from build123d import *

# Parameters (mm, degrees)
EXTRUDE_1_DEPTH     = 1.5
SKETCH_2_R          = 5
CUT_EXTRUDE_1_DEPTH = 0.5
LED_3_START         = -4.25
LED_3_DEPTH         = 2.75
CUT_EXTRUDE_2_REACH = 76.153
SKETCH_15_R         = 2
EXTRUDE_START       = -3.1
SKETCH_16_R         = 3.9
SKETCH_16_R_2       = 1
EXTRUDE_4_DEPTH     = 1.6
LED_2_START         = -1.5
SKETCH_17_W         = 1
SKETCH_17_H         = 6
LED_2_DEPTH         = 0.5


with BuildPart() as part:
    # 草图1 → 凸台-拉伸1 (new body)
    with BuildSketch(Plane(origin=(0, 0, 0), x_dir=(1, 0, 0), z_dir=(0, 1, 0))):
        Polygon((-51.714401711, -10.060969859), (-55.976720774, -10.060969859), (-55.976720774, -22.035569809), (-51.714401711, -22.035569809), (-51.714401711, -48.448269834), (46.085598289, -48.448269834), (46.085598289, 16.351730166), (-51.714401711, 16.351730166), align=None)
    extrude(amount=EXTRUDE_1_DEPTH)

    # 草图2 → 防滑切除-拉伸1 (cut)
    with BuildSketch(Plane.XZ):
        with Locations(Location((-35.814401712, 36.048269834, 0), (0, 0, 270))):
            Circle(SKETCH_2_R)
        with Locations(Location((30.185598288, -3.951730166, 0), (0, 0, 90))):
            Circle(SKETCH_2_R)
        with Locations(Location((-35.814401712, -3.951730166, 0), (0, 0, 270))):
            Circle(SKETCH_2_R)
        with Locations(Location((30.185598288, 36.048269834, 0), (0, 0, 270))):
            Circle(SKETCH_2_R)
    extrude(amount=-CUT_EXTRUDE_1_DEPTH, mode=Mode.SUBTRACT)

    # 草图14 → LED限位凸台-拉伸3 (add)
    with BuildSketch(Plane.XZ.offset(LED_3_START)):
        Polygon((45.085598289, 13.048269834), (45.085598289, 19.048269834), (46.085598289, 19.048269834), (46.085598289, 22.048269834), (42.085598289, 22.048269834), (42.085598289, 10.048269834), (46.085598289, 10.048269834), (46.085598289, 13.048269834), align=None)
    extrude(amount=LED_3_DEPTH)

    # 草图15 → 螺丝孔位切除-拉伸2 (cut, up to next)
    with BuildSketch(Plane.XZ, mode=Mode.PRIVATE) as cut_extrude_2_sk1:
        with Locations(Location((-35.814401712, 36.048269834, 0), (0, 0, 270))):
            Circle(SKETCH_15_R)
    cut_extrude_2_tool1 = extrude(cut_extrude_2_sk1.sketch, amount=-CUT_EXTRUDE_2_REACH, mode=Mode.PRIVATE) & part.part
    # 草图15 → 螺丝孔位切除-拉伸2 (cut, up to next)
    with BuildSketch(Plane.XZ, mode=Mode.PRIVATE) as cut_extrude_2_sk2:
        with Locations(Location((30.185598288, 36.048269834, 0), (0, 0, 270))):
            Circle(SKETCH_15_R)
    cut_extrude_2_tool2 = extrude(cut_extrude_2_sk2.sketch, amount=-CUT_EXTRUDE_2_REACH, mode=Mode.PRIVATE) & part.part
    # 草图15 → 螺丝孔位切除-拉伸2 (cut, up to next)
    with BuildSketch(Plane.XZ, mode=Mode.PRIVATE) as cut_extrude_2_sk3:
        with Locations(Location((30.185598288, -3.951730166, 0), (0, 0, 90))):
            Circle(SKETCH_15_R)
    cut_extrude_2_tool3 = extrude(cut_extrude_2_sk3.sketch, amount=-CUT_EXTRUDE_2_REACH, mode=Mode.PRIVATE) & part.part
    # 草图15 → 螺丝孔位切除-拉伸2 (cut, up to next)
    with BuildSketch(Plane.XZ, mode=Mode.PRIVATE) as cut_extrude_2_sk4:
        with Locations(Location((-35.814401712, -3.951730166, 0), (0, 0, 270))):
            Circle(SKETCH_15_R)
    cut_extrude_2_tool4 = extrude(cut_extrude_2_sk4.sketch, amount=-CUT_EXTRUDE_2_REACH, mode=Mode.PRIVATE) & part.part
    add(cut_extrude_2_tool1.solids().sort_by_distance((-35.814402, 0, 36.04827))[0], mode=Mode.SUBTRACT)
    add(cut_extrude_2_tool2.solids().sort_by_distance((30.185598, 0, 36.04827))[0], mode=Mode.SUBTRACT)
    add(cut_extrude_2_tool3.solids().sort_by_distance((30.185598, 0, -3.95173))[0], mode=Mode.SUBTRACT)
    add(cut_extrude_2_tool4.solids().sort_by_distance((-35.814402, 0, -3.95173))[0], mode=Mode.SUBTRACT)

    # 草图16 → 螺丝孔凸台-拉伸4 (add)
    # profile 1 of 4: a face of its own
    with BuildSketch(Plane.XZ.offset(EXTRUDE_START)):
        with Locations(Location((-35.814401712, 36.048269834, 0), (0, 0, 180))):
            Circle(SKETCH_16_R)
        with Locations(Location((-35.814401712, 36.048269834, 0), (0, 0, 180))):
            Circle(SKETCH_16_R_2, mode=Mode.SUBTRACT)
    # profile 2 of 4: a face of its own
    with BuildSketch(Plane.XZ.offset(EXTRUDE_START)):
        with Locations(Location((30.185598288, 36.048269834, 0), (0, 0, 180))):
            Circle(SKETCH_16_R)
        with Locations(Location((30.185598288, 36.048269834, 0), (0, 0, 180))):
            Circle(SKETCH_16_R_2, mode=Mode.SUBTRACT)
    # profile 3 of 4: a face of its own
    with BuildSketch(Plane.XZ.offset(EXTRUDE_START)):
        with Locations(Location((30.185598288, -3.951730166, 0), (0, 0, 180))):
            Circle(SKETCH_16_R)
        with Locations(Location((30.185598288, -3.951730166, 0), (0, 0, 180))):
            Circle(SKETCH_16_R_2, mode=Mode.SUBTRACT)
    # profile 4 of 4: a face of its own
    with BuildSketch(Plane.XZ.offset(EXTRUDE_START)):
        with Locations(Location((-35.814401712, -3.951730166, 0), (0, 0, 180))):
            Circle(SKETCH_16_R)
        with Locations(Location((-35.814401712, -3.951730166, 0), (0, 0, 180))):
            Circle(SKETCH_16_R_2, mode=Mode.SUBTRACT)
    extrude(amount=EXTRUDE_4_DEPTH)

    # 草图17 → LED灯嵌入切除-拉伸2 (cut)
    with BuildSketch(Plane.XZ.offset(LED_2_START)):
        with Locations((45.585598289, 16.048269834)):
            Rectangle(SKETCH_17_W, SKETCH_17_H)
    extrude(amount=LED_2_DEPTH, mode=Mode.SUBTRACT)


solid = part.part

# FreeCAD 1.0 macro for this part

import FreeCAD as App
import Part
import Sketcher
Q = App.Units.Quantity

doc = App.newDocument("Part")
body = doc.addObject("PartDesign::Body", "Body")

# Sketch on XZ plane
sketch1 = body.newObject("Sketcher::SketchObject", "Sketch")
sketch1.AttachmentSupport = (doc.getObject("XZ_Plane"), [""])
sketch1.MapMode = "FlatFace"
sketch1.addGeometry([
    Part.LineSegment(App.Vector(-51.7, 10.1, 0), App.Vector(-56, 10.1, 0)),  # 0
    Part.LineSegment(App.Vector(-56, 10.1, 0), App.Vector(-56, 22, 0)),  # 1
    Part.LineSegment(App.Vector(-56, 22, 0), App.Vector(-51.7, 22, 0)),  # 2
    Part.LineSegment(App.Vector(-51.7, 22, 0), App.Vector(-51.7, 48.4, 0)),  # 3
    Part.LineSegment(App.Vector(-51.7, 48.4, 0), App.Vector(46.1, 48.4, 0)),  # 4
    Part.LineSegment(App.Vector(46.1, 48.4, 0), App.Vector(46.1, -16.4, 0)),  # 5
    Part.LineSegment(App.Vector(46.1, -16.4, 0), App.Vector(-51.7, -16.4, 0)),  # 6
    Part.LineSegment(App.Vector(-51.7, -16.4, 0), App.Vector(-51.7, 10.1, 0)),  # 7
], False)
sketch1.addConstraint([
    Sketcher.Constraint("Coincident", 0, 2, 1, 1),
    Sketcher.Constraint("Coincident", 1, 2, 2, 1),
    Sketcher.Constraint("Coincident", 2, 2, 3, 1),
    Sketcher.Constraint("Coincident", 3, 2, 4, 1),
    Sketcher.Constraint("Coincident", 4, 2, 5, 1),
    Sketcher.Constraint("Coincident", 5, 2, 6, 1),
    Sketcher.Constraint("Coincident", 6, 2, 7, 1),
    Sketcher.Constraint("Coincident", 7, 2, 0, 1),
    Sketcher.Constraint("Horizontal", 0),
    Sketcher.Constraint("Vertical", 1),
    Sketcher.Constraint("Horizontal", 2),
    Sketcher.Constraint("Vertical", 3),
    Sketcher.Constraint("Horizontal", 4),
    Sketcher.Constraint("Vertical", 5),
    Sketcher.Constraint("Horizontal", 6),
    Sketcher.Constraint("Vertical", 7),
    Sketcher.Constraint("Vertical", 3, 2, 6, 2),
    Sketcher.Constraint("Equal", 3, 7),
    Sketcher.Constraint("DistanceX", 4, 1, 4, 2, Q("97.8 mm")),
    Sketcher.Constraint("DistanceY", 5, 2, 5, 1, Q("64.8 mm")),
    Sketcher.Constraint("DistanceY", 1, 1, 1, 2, Q("11.9746 mm")),
    Sketcher.Constraint("DistanceX", 0, 2, 0, 1, Q("4.262319 mm")),
    Sketcher.Constraint("DistanceX", 2, 2, -1, 1, Q("51.714402 mm")),
    Sketcher.Constraint("DistanceY", -1, 1, 0, 2, Q("10.06097 mm")),
])
pad1 = body.newObject("PartDesign::Pad", "Pad")
pad1.Profile = sketch1
pad1.Length = 1.5
pad1.Reversed = True

# Sketch on XZ plane
sketch2 = body.newObject("Sketcher::SketchObject", "Sketch001")
sketch2.AttachmentSupport = (doc.getObject("XZ_Plane"), [""])
sketch2.MapMode = "FlatFace"
sketch2.addGeometry([
    Part.Circle(App.Vector(-36, 36, 0), App.Vector(0, 0, 1), 5),
    Part.Circle(App.Vector(30, -4, 0), App.Vector(0, 0, 1), 5),
    Part.Circle(App.Vector(-36, -4, 0), App.Vector(0, 0, 1), 5),
    Part.Circle(App.Vector(30, 36, 0), App.Vector(0, 0, 1), 5),
], False)
sketch2.addConstraint([
    Sketcher.Constraint("Equal", 0, 1),
    Sketcher.Constraint("Equal", 1, 2),
    Sketcher.Constraint("Equal", 2, 3),
    Sketcher.Constraint("Horizontal", 1, 3, 2, 3),
    Sketcher.Constraint("Horizontal", 0, 3, 3, 3),
    Sketcher.Constraint("Vertical", 0, 3, 2, 3),
    Sketcher.Constraint("Vertical", 1, 3, 3, 3),
    Sketcher.Constraint("Diameter", 0, Q("10 mm")),
    Sketcher.Constraint("DistanceX", 0, 3, 1, 3, Q("66 mm")),
    Sketcher.Constraint("DistanceY", 1, 3, 0, 3, Q("40 mm")),
    Sketcher.Constraint("DistanceX", 0, 3, -1, 1, Q("35.814402 mm")),
    Sketcher.Constraint("DistanceY", -1, 1, 0, 3, Q("36.04827 mm")),
])
pocket1 = body.newObject("PartDesign::Pocket", "Pocket")
pocket1.Profile = sketch2
pocket1.Length = 0.5

# Sketch on XZ plane
sketch3 = body.newObject("Sketcher::SketchObject", "Sketch002")
sketch3.AttachmentSupport = (doc.getObject("XZ_Plane"), [""])
sketch3.MapMode = "FlatFace"
sketch3.AttachmentOffset = App.Placement(App.Vector(0, 0, -4.25), App.Rotation())
sketch3.addGeometry([
    Part.LineSegment(App.Vector(45.1, 13, 0), App.Vector(45.1, 19, 0)),  # 0
    Part.LineSegment(App.Vector(45.1, 19, 0), App.Vector(46.1, 19, 0)),  # 1
    Part.LineSegment(App.Vector(46.1, 19, 0), App.Vector(46.1, 22, 0)),  # 2
    Part.LineSegment(App.Vector(46.1, 22, 0), App.Vector(42.1, 22, 0)),  # 3
    Part.LineSegment(App.Vector(42.1, 22, 0), App.Vector(42.1, 10, 0)),  # 4
    Part.LineSegment(App.Vector(42.1, 10, 0), App.Vector(46.1, 10, 0)),  # 5
    Part.LineSegment(App.Vector(46.1, 10, 0), App.Vector(46.1, 13, 0)),  # 6
    Part.LineSegment(App.Vector(46.1, 13, 0), App.Vector(45.1, 13, 0)),  # 7
], False)
sketch3.addConstraint([
    Sketcher.Constraint("Coincident", 0, 2, 1, 1),
    Sketcher.Constraint("Coincident", 1, 2, 2, 1),
    Sketcher.Constraint("Coincident", 2, 2, 3, 1),
    Sketcher.Constraint("Coincident", 3, 2, 4, 1),
    Sketcher.Constraint("Coincident", 4, 2, 5, 1),
    Sketcher.Constraint("Coincident", 5, 2, 6, 1),
    Sketcher.Constraint("Coincident", 6, 2, 7, 1),
    Sketcher.Constraint("Coincident", 7, 2, 0, 1),
    Sketcher.Constraint("Vertical", 0),
    Sketcher.Constraint("Horizontal", 1),
    Sketcher.Constraint("Vertical", 2),
    Sketcher.Constraint("Horizontal", 3),
    Sketcher.Constraint("Vertical", 4),
    Sketcher.Constraint("Horizontal", 5),
    Sketcher.Constraint("Vertical", 6),
    Sketcher.Constraint("Horizontal", 7),
    Sketcher.Constraint("Vertical", 2, 2, 5, 2),
    Sketcher.Constraint("Equal", 2, 6),
    Sketcher.Constraint("DistanceX", 1, 1, 1, 2, Q("1 mm")),
    Sketcher.Constraint("DistanceX", 3, 2, 3, 1, Q("4 mm")),
    Sketcher.Constraint("DistanceY", 0, 1, 0, 2, Q("6 mm")),
    Sketcher.Constraint("DistanceY", 2, 1, 2, 2, Q("3 mm")),
    Sketcher.Constraint("DistanceX", -1, 1, 0, 2, Q("45.085598 mm")),
    Sketcher.Constraint("DistanceY", -1, 1, 0, 2, Q("19.04827 mm")),
])
pad2 = body.newObject("PartDesign::Pad", "Pad001")
pad2.Profile = sketch3
pad2.Length = 2.75

# Sketch on XZ plane
sketch4 = body.newObject("Sketcher::SketchObject", "Sketch003")
sketch4.AttachmentSupport = (doc.getObject("XZ_Plane"), [""])
sketch4.MapMode = "FlatFace"
sketch4.addGeometry(Part.Circle(App.Vector(-35.8, 36, 0), App.Vector(0, 0, 1), 2), False)
sketch4.addConstraint([
    Sketcher.Constraint("Diameter", 0, Q("4 mm")),
    Sketcher.Constraint("DistanceX", 0, 3, -1, 1, Q("35.814402 mm")),
    Sketcher.Constraint("DistanceY", -1, 1, 0, 3, Q("36.04827 mm")),
])
pocket2 = body.newObject("PartDesign::Pocket", "Pocket001")
pocket2.Profile = sketch4
pocket2.Length = 1.5

# Sketch on XZ plane
sketch5 = body.newObject("Sketcher::SketchObject", "Sketch004")
sketch5.AttachmentSupport = (doc.getObject("XZ_Plane"), [""])
sketch5.MapMode = "FlatFace"
sketch5.addGeometry(Part.Circle(App.Vector(30.2, 36, 0), App.Vector(0, 0, 1), 2), False)
sketch5.addConstraint([
    Sketcher.Constraint("Diameter", 0, Q("4 mm")),
    Sketcher.Constraint("DistanceX", -1, 1, 0, 3, Q("30.185598 mm")),
    Sketcher.Constraint("DistanceY", -1, 1, 0, 3, Q("36.04827 mm")),
])
pocket3 = body.newObject("PartDesign::Pocket", "Pocket002")
pocket3.Profile = sketch5
pocket3.Length = 1.5

# Sketch on XZ plane
sketch6 = body.newObject("Sketcher::SketchObject", "Sketch005")
sketch6.AttachmentSupport = (doc.getObject("XZ_Plane"), [""])
sketch6.MapMode = "FlatFace"
sketch6.addGeometry(Part.Circle(App.Vector(30.2, -4, 0), App.Vector(0, 0, 1), 2), False)
sketch6.addConstraint([
    Sketcher.Constraint("Diameter", 0, Q("4 mm")),
    Sketcher.Constraint("DistanceX", -1, 1, 0, 3, Q("30.185598 mm")),
    Sketcher.Constraint("DistanceY", 0, 3, -1, 1, Q("3.95173 mm")),
])
pocket4 = body.newObject("PartDesign::Pocket", "Pocket003")
pocket4.Profile = sketch6
pocket4.Length = 1.5

# Sketch on XZ plane
sketch7 = body.newObject("Sketcher::SketchObject", "Sketch006")
sketch7.AttachmentSupport = (doc.getObject("XZ_Plane"), [""])
sketch7.MapMode = "FlatFace"
sketch7.addGeometry(Part.Circle(App.Vector(-35.8, -4, 0), App.Vector(0, 0, 1), 2), False)
sketch7.addConstraint([
    Sketcher.Constraint("Diameter", 0, Q("4 mm")),
    Sketcher.Constraint("DistanceX", 0, 3, -1, 1, Q("35.814402 mm")),
    Sketcher.Constraint("DistanceY", 0, 3, -1, 1, Q("3.95173 mm")),
])
pocket5 = body.newObject("PartDesign::Pocket", "Pocket004")
pocket5.Profile = sketch7
pocket5.Length = 1.5

# Sketch on XZ plane
sketch8 = body.newObject("Sketcher::SketchObject", "Sketch007")
sketch8.AttachmentSupport = (doc.getObject("XZ_Plane"), [""])
sketch8.MapMode = "FlatFace"
sketch8.AttachmentOffset = App.Placement(App.Vector(0, 0, -3.1), App.Rotation())
sketch8.addGeometry([
    Part.Circle(App.Vector(-35.8, 36, 0), App.Vector(0, 0, 1), 3.9),  # 0
    Part.Circle(App.Vector(-35.8, 36, 0), App.Vector(0, 0, 1), 1),  # 1
    Part.Circle(App.Vector(30.2, 36, 0), App.Vector(0, 0, 1), 3.9),  # 2
    Part.Circle(App.Vector(30.2, 36, 0), App.Vector(0, 0, 1), 1),  # 3
    Part.Circle(App.Vector(30.2, -4, 0), App.Vector(0, 0, 1), 3.9),  # 4
    Part.Circle(App.Vector(30.2, -4, 0), App.Vector(0, 0, 1), 1),  # 5
    Part.Circle(App.Vector(-35.8, -4, 0), App.Vector(0, 0, 1), 3.9),  # 6
    Part.Circle(App.Vector(-35.8, -4, 0), App.Vector(0, 0, 1), 1),  # 7
], False)
sketch8.addConstraint([
    Sketcher.Constraint("Coincident", 1, 3, 0, 3),
    Sketcher.Constraint("Coincident", 3, 3, 2, 3),
    Sketcher.Constraint("Coincident", 5, 3, 4, 3),
    Sketcher.Constraint("Coincident", 7, 3, 6, 3),
    Sketcher.Constraint("Equal", 0, 2),
    Sketcher.Constraint("Equal", 1, 3),
    Sketcher.Constraint("Equal", 2, 4),
    Sketcher.Constraint("Equal", 3, 5),
    Sketcher.Constraint("Equal", 4, 6),
    Sketcher.Constraint("Equal", 5, 7),
    Sketcher.Constraint("Horizontal", 1, 3, 2, 3),
    Sketcher.Constraint("Horizontal", 5, 3, 6, 3),
    Sketcher.Constraint("Vertical", 3, 3, 4, 3),
    Sketcher.Constraint("Vertical", 1, 3, 6, 3),
    Sketcher.Constraint("Diameter", 1, Q("2 mm")),
    Sketcher.Constraint("Diameter", 0, Q("7.8 mm")),
    Sketcher.Constraint("DistanceX", 0, 3, 2, 3, Q("66 mm")),
    Sketcher.Constraint("DistanceY", 4, 3, 2, 3, Q("40 mm")),
    Sketcher.Constraint("DistanceX", 0, 3, -1, 1, Q("35.814402 mm")),
    Sketcher.Constraint("DistanceY", -1, 1, 0, 3, Q("36.04827 mm")),
])
pad3 = body.newObject("PartDesign::Pad", "Pad002")
pad3.Profile = sketch8
pad3.Length = 1.6

# Sketch on XZ plane
sketch9 = body.newObject("Sketcher::SketchObject", "Sketch008")
sketch9.AttachmentSupport = (doc.getObject("XZ_Plane"), [""])
sketch9.MapMode = "FlatFace"
sketch9.AttachmentOffset = App.Placement(App.Vector(0, 0, -1.5), App.Rotation())
sketch9.addGeometry([
    Part.LineSegment(App.Vector(45.1, 19, 0), App.Vector(45.1, 13, 0)),
    Part.LineSegment(App.Vector(45.1, 13, 0), App.Vector(46.1, 13, 0)),
    Part.LineSegment(App.Vector(46.1, 13, 0), App.Vector(46.1, 19, 0)),
    Part.LineSegment(App.Vector(46.1, 19, 0), App.Vector(45.1, 19, 0)),
], False)
sketch9.addConstraint([
    Sketcher.Constraint("Coincident", 0, 2, 1, 1),
    Sketcher.Constraint("Coincident", 1, 2, 2, 1),
    Sketcher.Constraint("Coincident", 2, 2, 3, 1),
    Sketcher.Constraint("Coincident", 3, 2, 0, 1),
    Sketcher.Constraint("Vertical", 0),
    Sketcher.Constraint("Horizontal", 1),
    Sketcher.Constraint("Vertical", 2),
    Sketcher.Constraint("Horizontal", 3),
    Sketcher.Constraint("DistanceX", 1, 1, 1, 2, Q("1 mm")),
    Sketcher.Constraint("DistanceY", 0, 2, 0, 1, Q("6 mm")),
    Sketcher.Constraint("DistanceX", -1, 1, 0, 2, Q("45.085598 mm")),
    Sketcher.Constraint("DistanceY", -1, 1, 0, 2, Q("13.04827 mm")),
])
pocket6 = body.newObject("PartDesign::Pocket", "Pocket005")
pocket6.Profile = sketch9
pocket6.Length = 0.5
pocket6.Reversed = True

doc.recompute()
